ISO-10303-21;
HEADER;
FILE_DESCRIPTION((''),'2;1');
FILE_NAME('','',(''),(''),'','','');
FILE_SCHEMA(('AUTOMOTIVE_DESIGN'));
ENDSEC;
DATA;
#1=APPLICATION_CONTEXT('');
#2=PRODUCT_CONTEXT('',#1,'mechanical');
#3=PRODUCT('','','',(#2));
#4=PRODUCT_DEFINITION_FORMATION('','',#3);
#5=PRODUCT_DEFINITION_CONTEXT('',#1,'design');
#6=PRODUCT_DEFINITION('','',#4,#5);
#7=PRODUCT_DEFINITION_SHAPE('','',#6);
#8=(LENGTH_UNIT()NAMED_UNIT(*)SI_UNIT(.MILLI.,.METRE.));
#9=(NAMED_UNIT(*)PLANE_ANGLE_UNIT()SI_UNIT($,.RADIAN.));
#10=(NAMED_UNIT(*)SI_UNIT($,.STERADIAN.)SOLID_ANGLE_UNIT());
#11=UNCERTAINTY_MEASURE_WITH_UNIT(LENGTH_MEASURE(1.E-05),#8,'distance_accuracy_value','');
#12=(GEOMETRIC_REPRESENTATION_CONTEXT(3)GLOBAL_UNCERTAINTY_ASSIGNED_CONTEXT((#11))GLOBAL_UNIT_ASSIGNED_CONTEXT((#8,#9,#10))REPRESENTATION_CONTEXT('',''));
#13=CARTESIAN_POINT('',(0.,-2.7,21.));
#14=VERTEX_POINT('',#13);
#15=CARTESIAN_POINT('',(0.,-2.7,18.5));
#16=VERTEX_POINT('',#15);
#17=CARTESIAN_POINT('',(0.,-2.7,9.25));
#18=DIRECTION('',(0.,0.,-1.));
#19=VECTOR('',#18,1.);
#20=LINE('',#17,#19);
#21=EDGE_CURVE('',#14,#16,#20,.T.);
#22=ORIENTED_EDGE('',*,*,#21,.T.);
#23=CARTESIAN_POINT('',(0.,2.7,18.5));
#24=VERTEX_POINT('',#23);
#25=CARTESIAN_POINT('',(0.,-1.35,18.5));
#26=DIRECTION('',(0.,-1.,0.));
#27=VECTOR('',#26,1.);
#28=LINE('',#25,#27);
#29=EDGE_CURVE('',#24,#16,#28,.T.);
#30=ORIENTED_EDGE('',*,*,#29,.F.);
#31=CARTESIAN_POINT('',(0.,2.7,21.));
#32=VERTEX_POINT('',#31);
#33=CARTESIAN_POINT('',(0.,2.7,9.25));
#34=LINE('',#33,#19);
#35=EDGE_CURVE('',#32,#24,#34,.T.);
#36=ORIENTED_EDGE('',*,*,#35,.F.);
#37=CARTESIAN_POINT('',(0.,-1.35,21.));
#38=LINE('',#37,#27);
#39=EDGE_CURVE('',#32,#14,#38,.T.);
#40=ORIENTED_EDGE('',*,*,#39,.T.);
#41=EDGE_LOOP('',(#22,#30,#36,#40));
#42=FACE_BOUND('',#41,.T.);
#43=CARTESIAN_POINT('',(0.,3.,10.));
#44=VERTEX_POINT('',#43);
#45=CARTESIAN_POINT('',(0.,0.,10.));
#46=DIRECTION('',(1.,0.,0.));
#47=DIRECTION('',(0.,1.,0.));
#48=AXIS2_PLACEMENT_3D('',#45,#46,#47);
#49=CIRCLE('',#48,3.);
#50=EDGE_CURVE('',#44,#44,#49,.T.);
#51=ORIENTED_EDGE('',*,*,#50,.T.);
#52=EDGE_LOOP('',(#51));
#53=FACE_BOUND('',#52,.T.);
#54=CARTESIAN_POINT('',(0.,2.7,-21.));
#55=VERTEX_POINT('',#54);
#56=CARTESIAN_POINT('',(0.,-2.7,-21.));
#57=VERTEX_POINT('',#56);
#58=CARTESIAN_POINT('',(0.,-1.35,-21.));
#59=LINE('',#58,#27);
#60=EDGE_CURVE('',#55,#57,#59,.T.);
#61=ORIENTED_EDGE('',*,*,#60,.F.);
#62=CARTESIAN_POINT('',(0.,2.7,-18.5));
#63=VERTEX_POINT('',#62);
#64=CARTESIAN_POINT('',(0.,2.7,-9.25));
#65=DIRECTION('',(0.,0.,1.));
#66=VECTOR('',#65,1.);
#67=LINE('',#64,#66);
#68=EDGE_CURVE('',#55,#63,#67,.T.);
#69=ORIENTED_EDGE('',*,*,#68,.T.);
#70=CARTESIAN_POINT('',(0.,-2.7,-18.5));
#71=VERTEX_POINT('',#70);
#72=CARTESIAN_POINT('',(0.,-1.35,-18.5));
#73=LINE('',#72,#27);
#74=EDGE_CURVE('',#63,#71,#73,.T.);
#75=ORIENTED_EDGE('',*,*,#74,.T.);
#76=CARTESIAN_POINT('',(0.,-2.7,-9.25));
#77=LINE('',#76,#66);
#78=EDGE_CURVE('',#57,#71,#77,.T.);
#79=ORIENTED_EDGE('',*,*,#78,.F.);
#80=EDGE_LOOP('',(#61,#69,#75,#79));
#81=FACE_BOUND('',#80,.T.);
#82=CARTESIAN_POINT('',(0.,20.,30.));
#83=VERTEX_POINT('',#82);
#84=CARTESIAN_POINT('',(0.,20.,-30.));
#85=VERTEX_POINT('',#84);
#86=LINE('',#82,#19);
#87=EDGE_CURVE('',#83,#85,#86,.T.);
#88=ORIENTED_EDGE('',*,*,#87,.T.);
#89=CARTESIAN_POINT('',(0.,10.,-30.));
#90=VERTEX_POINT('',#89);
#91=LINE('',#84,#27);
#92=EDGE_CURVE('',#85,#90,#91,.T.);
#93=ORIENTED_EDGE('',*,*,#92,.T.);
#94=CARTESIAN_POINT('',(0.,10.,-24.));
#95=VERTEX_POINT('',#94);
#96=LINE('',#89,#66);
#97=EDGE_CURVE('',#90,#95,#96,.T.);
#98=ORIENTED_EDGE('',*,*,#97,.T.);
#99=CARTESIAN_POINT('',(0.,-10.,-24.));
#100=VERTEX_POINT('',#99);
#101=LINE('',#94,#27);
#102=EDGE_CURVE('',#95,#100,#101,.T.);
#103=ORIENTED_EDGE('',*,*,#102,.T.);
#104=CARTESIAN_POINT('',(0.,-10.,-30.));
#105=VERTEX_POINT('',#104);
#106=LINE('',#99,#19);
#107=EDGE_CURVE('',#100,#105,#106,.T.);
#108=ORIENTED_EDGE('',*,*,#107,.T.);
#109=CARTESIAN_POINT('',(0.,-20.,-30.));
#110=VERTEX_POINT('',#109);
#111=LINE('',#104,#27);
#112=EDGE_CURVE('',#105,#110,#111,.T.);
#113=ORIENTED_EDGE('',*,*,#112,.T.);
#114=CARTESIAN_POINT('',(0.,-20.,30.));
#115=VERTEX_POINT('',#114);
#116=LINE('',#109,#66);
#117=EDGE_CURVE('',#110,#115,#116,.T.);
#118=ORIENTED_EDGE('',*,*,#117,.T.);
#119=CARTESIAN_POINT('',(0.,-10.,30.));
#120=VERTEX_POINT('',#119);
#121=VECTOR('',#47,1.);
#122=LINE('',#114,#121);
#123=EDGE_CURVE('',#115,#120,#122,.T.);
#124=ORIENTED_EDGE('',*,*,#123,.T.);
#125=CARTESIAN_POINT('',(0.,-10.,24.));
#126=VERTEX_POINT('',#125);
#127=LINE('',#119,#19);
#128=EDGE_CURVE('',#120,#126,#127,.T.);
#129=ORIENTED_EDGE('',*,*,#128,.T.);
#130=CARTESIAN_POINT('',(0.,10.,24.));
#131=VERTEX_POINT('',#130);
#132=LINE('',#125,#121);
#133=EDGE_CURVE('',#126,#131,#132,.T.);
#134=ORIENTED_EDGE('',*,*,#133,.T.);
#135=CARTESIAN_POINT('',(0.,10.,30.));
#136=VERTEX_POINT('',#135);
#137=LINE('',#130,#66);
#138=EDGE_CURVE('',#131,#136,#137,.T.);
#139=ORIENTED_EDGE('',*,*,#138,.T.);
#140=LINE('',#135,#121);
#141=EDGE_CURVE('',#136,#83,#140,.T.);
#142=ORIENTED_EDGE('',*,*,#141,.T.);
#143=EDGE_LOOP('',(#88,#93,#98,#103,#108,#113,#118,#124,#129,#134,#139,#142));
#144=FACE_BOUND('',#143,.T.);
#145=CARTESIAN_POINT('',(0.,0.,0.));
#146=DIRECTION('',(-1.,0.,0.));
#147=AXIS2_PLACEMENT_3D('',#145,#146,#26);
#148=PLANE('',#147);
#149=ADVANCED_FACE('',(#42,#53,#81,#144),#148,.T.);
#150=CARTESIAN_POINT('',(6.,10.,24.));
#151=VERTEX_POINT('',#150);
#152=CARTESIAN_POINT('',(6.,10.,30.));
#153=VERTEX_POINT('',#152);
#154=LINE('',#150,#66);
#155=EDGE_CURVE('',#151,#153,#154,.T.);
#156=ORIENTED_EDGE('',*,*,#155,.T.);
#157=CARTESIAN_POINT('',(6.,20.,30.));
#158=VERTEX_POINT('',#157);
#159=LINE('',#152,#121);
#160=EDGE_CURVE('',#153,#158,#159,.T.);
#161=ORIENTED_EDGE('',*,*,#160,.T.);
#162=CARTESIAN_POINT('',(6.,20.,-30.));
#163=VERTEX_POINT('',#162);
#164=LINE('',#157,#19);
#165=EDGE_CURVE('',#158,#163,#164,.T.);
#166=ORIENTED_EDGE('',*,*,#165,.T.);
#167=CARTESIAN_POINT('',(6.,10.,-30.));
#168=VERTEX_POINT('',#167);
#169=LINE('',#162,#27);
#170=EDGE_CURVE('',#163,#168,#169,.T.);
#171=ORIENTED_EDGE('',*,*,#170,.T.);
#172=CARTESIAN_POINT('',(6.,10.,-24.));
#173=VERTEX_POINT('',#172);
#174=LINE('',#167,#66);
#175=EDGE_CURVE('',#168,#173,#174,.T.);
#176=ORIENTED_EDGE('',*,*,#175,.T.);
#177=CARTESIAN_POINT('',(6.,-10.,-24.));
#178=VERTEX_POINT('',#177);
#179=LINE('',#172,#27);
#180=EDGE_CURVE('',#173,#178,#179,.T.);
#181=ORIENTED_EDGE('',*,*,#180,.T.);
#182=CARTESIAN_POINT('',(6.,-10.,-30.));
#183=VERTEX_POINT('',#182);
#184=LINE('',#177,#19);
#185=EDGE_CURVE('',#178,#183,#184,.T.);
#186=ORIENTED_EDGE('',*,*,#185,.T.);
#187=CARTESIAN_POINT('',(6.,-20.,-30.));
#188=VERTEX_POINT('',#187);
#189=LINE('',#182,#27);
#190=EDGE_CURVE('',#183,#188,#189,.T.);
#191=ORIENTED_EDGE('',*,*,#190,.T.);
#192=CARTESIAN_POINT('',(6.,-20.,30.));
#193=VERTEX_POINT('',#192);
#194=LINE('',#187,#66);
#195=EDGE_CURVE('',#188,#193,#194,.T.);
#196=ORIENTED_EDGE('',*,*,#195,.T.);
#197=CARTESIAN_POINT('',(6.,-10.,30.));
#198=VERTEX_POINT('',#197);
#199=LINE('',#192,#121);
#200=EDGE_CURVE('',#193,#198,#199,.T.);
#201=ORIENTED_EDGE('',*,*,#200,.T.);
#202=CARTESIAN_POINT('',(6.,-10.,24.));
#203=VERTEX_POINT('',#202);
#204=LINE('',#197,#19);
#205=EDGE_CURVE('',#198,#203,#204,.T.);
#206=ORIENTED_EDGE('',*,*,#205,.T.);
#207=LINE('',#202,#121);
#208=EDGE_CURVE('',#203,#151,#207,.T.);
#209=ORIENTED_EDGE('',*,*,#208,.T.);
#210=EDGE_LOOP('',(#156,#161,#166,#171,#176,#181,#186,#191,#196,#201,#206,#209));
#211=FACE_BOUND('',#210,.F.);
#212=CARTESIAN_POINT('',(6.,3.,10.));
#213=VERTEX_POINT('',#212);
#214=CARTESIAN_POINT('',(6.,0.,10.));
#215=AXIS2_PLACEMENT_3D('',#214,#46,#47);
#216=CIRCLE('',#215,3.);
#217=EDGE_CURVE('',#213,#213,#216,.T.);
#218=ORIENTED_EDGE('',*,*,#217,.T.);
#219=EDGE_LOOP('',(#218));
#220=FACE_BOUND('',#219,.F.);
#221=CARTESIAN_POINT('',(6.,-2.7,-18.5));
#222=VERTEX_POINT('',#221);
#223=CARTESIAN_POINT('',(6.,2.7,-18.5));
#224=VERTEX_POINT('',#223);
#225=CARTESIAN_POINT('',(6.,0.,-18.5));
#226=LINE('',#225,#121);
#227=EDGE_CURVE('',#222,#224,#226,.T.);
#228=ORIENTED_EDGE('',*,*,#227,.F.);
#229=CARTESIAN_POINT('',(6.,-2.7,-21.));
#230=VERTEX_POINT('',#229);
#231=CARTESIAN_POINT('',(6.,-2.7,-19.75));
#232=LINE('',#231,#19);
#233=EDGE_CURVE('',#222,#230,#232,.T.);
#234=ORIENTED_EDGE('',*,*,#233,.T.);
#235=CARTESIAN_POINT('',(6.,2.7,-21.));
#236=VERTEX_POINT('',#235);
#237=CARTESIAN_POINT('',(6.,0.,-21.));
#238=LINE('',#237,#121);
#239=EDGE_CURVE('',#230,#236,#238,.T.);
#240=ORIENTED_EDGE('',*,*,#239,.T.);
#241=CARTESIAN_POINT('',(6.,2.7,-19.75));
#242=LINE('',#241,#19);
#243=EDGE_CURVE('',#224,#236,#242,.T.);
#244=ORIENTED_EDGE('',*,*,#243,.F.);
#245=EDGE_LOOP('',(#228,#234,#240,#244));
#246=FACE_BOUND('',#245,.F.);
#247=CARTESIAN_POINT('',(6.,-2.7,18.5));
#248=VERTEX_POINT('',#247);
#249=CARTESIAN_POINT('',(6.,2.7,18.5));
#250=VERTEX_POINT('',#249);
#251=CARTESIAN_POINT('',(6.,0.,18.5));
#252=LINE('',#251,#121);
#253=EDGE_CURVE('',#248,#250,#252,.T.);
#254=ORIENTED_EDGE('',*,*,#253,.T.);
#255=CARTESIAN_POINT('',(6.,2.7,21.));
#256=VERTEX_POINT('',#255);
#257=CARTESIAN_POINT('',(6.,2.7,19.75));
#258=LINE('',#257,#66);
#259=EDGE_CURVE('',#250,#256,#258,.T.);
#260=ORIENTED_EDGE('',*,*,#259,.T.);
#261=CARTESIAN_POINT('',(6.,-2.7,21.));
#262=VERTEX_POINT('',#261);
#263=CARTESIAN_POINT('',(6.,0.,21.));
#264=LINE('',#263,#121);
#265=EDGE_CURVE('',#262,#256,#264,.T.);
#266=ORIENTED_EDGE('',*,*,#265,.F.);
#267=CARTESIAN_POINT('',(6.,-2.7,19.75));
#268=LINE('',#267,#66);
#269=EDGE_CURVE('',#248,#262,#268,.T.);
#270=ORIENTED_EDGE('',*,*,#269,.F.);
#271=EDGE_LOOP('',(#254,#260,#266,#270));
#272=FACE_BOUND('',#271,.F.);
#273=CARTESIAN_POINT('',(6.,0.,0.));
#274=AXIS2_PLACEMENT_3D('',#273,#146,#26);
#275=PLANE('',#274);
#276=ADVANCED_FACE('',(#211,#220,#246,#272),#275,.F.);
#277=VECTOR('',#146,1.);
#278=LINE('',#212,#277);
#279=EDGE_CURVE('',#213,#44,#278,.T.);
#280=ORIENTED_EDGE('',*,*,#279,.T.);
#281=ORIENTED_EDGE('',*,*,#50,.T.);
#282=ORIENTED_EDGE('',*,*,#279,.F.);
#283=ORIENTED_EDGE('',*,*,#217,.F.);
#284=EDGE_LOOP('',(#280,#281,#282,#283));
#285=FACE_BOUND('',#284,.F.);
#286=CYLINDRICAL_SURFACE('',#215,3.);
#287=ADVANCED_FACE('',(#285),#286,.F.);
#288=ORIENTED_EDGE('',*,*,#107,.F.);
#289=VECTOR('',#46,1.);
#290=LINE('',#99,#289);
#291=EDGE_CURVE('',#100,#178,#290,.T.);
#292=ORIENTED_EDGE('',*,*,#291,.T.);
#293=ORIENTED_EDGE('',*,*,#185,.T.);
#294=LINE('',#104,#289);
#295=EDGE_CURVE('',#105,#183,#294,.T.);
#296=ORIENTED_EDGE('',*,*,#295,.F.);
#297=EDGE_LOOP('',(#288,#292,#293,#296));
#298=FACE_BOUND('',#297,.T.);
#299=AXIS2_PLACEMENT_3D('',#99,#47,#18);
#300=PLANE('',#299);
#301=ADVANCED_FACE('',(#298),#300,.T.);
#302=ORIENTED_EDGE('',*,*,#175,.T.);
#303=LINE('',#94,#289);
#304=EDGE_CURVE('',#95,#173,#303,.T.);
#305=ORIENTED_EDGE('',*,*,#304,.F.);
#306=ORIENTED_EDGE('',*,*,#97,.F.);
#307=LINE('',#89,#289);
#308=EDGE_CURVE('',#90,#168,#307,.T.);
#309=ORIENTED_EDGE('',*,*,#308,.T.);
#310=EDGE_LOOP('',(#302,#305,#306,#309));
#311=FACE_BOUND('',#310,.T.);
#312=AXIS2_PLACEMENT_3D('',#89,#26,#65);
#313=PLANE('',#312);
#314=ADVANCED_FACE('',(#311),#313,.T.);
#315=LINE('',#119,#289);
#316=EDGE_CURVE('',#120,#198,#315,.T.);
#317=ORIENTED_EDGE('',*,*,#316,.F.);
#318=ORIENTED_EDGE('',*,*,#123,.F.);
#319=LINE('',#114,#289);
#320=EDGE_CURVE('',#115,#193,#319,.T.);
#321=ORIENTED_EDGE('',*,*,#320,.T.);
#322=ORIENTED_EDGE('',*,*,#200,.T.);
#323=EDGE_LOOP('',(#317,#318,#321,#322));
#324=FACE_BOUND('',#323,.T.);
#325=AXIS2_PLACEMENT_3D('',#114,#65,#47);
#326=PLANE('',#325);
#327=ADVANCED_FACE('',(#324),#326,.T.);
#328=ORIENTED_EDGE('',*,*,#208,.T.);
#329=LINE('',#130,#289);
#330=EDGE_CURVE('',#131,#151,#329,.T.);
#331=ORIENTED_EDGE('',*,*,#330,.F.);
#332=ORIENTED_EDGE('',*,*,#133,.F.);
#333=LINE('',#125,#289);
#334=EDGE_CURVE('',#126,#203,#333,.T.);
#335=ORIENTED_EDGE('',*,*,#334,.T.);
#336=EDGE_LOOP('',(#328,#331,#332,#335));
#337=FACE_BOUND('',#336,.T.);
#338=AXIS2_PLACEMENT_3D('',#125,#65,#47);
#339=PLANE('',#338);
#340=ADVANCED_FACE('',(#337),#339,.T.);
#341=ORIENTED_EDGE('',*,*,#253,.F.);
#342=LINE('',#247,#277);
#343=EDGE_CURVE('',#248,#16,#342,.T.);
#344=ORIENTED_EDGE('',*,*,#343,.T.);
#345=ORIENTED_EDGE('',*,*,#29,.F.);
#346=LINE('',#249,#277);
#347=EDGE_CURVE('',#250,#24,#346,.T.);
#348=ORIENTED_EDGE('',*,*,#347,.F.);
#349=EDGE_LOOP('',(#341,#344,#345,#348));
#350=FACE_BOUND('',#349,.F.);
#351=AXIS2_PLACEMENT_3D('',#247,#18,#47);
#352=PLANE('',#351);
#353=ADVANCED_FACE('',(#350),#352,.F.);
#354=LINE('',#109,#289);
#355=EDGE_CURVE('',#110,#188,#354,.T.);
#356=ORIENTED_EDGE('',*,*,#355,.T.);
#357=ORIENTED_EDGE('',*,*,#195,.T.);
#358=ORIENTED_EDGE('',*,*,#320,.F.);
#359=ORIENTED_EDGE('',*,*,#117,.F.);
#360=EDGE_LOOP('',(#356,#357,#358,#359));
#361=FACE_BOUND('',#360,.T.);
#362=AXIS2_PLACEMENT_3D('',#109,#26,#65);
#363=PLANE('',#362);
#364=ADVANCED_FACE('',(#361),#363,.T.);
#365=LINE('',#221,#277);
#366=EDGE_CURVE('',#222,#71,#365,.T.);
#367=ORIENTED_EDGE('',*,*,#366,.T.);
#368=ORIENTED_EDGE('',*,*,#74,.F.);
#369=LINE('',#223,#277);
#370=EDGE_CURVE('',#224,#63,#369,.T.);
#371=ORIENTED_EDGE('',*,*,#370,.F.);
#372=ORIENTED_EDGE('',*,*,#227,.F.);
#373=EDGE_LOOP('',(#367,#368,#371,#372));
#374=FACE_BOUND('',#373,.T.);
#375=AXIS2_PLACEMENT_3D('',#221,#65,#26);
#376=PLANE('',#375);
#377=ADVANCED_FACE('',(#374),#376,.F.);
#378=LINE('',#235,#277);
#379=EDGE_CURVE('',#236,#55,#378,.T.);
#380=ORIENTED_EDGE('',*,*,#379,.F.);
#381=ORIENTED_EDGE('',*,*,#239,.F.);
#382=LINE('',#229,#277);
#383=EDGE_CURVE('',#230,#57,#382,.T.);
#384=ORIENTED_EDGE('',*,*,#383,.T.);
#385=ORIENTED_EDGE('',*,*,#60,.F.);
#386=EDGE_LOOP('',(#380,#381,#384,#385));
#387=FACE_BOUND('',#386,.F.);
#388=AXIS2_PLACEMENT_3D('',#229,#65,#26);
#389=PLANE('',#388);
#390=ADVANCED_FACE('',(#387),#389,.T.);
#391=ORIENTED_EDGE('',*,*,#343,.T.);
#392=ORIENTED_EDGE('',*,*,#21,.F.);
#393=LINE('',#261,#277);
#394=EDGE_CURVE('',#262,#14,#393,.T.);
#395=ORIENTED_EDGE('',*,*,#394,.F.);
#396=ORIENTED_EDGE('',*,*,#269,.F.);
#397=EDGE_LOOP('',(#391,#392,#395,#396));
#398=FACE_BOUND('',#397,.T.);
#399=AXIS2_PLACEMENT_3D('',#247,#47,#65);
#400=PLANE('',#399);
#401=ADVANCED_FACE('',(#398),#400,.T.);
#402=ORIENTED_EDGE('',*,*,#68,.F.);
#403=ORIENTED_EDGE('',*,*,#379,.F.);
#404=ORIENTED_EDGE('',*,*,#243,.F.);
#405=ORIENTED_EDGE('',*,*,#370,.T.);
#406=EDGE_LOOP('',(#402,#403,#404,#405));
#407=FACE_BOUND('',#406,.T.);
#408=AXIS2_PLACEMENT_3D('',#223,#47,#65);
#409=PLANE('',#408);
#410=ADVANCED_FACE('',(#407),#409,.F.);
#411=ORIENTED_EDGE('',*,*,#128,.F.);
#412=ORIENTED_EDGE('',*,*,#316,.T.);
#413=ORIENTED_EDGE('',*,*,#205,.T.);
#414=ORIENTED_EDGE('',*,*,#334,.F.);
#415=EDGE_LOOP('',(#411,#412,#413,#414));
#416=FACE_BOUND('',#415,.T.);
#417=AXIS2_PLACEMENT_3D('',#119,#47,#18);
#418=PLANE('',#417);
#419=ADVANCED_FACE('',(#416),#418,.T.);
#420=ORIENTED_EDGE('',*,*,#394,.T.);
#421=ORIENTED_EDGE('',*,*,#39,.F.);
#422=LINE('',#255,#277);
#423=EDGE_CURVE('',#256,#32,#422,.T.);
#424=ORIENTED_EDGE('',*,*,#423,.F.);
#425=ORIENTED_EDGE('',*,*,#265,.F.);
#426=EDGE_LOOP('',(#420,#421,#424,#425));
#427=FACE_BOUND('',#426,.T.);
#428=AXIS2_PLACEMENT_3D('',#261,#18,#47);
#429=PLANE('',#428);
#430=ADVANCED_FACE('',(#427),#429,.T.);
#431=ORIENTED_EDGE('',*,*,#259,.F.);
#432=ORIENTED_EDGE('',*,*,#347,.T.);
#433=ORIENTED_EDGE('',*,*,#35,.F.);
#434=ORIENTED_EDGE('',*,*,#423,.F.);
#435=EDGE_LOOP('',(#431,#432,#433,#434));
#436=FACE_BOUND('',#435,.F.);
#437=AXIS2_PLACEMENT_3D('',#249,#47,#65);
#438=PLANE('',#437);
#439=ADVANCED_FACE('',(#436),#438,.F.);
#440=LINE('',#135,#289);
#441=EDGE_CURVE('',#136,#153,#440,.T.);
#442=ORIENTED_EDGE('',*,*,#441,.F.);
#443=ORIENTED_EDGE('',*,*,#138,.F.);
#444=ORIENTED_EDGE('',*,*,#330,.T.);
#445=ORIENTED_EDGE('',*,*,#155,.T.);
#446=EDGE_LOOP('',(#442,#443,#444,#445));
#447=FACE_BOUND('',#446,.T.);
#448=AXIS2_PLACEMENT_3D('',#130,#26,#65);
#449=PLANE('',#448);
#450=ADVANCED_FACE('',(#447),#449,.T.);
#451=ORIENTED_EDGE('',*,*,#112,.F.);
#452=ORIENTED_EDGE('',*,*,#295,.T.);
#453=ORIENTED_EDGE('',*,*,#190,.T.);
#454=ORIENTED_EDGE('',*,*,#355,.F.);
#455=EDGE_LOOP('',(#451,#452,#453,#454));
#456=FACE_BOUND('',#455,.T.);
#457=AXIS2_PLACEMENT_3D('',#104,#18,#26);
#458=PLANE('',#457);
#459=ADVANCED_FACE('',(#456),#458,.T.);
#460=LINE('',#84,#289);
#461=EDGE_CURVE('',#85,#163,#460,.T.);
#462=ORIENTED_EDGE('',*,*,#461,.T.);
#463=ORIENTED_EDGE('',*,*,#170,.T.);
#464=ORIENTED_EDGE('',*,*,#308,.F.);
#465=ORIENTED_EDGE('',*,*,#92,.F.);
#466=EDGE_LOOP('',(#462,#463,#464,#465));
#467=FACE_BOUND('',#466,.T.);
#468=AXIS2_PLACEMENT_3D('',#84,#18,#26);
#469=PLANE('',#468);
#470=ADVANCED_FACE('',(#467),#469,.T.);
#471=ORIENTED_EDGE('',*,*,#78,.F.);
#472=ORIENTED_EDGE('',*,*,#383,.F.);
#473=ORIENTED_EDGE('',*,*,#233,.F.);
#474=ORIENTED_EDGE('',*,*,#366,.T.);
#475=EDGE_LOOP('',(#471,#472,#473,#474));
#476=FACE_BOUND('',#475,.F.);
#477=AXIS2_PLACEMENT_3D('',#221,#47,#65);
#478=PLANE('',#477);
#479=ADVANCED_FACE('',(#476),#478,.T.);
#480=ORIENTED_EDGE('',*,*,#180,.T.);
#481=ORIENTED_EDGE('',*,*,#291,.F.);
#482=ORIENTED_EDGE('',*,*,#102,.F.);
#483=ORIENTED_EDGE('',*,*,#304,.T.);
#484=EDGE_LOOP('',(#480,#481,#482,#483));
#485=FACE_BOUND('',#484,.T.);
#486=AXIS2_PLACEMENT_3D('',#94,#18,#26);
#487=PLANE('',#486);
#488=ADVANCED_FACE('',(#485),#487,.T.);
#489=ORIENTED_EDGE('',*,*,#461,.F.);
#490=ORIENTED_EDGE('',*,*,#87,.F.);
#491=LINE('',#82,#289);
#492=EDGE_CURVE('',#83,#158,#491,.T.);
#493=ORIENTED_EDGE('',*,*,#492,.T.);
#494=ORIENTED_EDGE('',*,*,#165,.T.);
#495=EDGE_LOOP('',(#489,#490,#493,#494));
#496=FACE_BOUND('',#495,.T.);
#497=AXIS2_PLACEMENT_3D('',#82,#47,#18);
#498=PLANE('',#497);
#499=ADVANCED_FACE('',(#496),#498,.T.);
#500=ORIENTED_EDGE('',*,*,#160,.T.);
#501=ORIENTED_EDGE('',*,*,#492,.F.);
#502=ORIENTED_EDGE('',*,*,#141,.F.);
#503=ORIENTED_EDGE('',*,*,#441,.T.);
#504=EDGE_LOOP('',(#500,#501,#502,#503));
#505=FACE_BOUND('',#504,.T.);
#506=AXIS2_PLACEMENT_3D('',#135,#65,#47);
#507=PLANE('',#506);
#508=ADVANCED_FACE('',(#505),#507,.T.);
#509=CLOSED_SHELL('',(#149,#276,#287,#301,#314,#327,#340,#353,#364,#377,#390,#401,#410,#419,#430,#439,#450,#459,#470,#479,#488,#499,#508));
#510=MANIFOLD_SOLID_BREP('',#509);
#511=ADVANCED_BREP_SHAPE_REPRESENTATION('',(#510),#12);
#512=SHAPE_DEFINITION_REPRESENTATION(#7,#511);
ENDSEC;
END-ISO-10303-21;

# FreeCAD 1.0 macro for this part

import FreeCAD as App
import Part
import Sketcher
from FreeCAD import Vector
Q = App.Units.Quantity


def add_polygon(sketch, points):
    """Adds a closed chain of lines whose ends are joined by coincident constraints."""
    first, n = sketch.GeometryCount, len(points)
    for a, b in zip(points, points[1:] + points[:1]):
        sketch.addGeometry(Part.LineSegment(App.Vector(*a, 0), App.Vector(*b, 0)), False)
    for i in range(n):
        sketch.addConstraint(Sketcher.Constraint("Coincident", first + i, 2, first + (i + 1) % n, 1))

doc = App.newDocument("Part")
body = doc.addObject("PartDesign::Body", "Body")

sketch1 = body.newObject("Sketcher::SketchObject", "Sketch")
sketch1.AttachmentSupport = (doc.getObject("YZ_Plane"), [""])
sketch1.MapMode = "FlatFace"
add_polygon(sketch1, [(-20, 30), (-20, -30), (-10, -30), (-10, -24), (10, -24), (10, -30), (20, -30), (20, 30), (10, 30), (10, 24), (-10, 24), (-10, 30)])
sketch1.addConstraint([
    Sketcher.Constraint("Vertical", 0),
    Sketcher.Constraint("Horizontal", 1),
    Sketcher.Constraint("Vertical", 2),
    Sketcher.Constraint("Horizontal", 3),
    Sketcher.Constraint("Vertical", 4),
    Sketcher.Constraint("Horizontal", 5),
    Sketcher.Constraint("Vertical", 6),
    Sketcher.Constraint("Horizontal", 7),
    Sketcher.Constraint("Vertical", 8),
    Sketcher.Constraint("Horizontal", 9),
    Sketcher.Constraint("Vertical", 10),
    Sketcher.Constraint("Horizontal", 11),
    Sketcher.Constraint("Symmetric", 0, 2, 6, 2, -1, 1),
    Sketcher.Constraint("Symmetric", 2, 2, 8, 2, -1, 1),
    Sketcher.Constraint("Symmetric", 4, 2, 10, 2, -1, 1),
    Sketcher.Constraint("Symmetric", 1, 2, 4, 2, -2),
    Sketcher.Constraint("DistanceX", 1, 1, 1, 2, Q("10 mm")),
    Sketcher.Constraint("DistanceX", 3, 1, 3, 2, Q("20 mm")),
    Sketcher.Constraint("DistanceY", 0, 2, 0, 1, Q("60 mm")),
    Sketcher.Constraint("DistanceY", 2, 1, 2, 2, Q("6 mm")),
])
pad1 = body.newObject("PartDesign::Pad", "Pad")
pad1.Profile = sketch1
pad1.Length = 6

sketch2 = body.newObject("Sketcher::SketchObject", "Sketch001")
sketch2.AttachmentSupport = (doc.getObject("YZ_Plane"), [""])
sketch2.MapMode = "FlatFace"
sketch2.AttachmentOffset = App.Placement(Vector(0, 0, 6), App.Rotation())
sketch2.addGeometry(Part.Circle(Vector(0, 10, 0), Vector(0, 0, 1), 3), False)
sketch2.addConstraint([
    Sketcher.Constraint("PointOnObject", 0, 3, -2),
    Sketcher.Constraint("Diameter", 0, Q("6 mm")),
    Sketcher.Constraint("DistanceY", -1, 1, 0, 3, Q("10 mm")),
])
pocket1 = body.newObject("PartDesign::Pocket", "Pocket")
pocket1.Profile = sketch2
pocket1.Type = "ThroughAll"

sketch3 = body.newObject("Sketcher::SketchObject", "Sketch002")
sketch3.AttachmentSupport = (doc.getObject("YZ_Plane"), [""])
sketch3.MapMode = "FlatFace"
sketch3.AttachmentOffset = App.Placement(Vector(0, 0, 6), App.Rotation())
add_polygon(sketch3, [(-2.7, 21), (-2.7, 18.5), (2.7, 18.5), (2.7, 21)])
sketch3.addConstraint([
    Sketcher.Constraint("Vertical", 0),
    Sketcher.Constraint("Horizontal", 1),
    Sketcher.Constraint("Vertical", 2),
    Sketcher.Constraint("Horizontal", 3),
    Sketcher.Constraint("DistanceX", 1, 1, 1, 2, Q("5.4 mm")),
    Sketcher.Constraint("DistanceY", 0, 2, 0, 1, Q("2.5 mm")),
    Sketcher.Constraint("DistanceY", -1, 1, 2, 2, Q("21 mm")),
    Sketcher.Constraint("DistanceX", 0, 2, -1, 1, Q("2.7 mm")),
])
pocket2 = body.newObject("PartDesign::Pocket", "Pocket001")
pocket2.Profile = sketch3
pocket2.Type = "ThroughAll"
doc.recompute()

mirrored = body.newObject("PartDesign::Mirrored", "Mirrored")
mirrored.Originals = [pocket2]
mirrored.MirrorPlane = (doc.getObject("XY_Plane"), [""])
body.Tip = mirrored

doc.recompute()
